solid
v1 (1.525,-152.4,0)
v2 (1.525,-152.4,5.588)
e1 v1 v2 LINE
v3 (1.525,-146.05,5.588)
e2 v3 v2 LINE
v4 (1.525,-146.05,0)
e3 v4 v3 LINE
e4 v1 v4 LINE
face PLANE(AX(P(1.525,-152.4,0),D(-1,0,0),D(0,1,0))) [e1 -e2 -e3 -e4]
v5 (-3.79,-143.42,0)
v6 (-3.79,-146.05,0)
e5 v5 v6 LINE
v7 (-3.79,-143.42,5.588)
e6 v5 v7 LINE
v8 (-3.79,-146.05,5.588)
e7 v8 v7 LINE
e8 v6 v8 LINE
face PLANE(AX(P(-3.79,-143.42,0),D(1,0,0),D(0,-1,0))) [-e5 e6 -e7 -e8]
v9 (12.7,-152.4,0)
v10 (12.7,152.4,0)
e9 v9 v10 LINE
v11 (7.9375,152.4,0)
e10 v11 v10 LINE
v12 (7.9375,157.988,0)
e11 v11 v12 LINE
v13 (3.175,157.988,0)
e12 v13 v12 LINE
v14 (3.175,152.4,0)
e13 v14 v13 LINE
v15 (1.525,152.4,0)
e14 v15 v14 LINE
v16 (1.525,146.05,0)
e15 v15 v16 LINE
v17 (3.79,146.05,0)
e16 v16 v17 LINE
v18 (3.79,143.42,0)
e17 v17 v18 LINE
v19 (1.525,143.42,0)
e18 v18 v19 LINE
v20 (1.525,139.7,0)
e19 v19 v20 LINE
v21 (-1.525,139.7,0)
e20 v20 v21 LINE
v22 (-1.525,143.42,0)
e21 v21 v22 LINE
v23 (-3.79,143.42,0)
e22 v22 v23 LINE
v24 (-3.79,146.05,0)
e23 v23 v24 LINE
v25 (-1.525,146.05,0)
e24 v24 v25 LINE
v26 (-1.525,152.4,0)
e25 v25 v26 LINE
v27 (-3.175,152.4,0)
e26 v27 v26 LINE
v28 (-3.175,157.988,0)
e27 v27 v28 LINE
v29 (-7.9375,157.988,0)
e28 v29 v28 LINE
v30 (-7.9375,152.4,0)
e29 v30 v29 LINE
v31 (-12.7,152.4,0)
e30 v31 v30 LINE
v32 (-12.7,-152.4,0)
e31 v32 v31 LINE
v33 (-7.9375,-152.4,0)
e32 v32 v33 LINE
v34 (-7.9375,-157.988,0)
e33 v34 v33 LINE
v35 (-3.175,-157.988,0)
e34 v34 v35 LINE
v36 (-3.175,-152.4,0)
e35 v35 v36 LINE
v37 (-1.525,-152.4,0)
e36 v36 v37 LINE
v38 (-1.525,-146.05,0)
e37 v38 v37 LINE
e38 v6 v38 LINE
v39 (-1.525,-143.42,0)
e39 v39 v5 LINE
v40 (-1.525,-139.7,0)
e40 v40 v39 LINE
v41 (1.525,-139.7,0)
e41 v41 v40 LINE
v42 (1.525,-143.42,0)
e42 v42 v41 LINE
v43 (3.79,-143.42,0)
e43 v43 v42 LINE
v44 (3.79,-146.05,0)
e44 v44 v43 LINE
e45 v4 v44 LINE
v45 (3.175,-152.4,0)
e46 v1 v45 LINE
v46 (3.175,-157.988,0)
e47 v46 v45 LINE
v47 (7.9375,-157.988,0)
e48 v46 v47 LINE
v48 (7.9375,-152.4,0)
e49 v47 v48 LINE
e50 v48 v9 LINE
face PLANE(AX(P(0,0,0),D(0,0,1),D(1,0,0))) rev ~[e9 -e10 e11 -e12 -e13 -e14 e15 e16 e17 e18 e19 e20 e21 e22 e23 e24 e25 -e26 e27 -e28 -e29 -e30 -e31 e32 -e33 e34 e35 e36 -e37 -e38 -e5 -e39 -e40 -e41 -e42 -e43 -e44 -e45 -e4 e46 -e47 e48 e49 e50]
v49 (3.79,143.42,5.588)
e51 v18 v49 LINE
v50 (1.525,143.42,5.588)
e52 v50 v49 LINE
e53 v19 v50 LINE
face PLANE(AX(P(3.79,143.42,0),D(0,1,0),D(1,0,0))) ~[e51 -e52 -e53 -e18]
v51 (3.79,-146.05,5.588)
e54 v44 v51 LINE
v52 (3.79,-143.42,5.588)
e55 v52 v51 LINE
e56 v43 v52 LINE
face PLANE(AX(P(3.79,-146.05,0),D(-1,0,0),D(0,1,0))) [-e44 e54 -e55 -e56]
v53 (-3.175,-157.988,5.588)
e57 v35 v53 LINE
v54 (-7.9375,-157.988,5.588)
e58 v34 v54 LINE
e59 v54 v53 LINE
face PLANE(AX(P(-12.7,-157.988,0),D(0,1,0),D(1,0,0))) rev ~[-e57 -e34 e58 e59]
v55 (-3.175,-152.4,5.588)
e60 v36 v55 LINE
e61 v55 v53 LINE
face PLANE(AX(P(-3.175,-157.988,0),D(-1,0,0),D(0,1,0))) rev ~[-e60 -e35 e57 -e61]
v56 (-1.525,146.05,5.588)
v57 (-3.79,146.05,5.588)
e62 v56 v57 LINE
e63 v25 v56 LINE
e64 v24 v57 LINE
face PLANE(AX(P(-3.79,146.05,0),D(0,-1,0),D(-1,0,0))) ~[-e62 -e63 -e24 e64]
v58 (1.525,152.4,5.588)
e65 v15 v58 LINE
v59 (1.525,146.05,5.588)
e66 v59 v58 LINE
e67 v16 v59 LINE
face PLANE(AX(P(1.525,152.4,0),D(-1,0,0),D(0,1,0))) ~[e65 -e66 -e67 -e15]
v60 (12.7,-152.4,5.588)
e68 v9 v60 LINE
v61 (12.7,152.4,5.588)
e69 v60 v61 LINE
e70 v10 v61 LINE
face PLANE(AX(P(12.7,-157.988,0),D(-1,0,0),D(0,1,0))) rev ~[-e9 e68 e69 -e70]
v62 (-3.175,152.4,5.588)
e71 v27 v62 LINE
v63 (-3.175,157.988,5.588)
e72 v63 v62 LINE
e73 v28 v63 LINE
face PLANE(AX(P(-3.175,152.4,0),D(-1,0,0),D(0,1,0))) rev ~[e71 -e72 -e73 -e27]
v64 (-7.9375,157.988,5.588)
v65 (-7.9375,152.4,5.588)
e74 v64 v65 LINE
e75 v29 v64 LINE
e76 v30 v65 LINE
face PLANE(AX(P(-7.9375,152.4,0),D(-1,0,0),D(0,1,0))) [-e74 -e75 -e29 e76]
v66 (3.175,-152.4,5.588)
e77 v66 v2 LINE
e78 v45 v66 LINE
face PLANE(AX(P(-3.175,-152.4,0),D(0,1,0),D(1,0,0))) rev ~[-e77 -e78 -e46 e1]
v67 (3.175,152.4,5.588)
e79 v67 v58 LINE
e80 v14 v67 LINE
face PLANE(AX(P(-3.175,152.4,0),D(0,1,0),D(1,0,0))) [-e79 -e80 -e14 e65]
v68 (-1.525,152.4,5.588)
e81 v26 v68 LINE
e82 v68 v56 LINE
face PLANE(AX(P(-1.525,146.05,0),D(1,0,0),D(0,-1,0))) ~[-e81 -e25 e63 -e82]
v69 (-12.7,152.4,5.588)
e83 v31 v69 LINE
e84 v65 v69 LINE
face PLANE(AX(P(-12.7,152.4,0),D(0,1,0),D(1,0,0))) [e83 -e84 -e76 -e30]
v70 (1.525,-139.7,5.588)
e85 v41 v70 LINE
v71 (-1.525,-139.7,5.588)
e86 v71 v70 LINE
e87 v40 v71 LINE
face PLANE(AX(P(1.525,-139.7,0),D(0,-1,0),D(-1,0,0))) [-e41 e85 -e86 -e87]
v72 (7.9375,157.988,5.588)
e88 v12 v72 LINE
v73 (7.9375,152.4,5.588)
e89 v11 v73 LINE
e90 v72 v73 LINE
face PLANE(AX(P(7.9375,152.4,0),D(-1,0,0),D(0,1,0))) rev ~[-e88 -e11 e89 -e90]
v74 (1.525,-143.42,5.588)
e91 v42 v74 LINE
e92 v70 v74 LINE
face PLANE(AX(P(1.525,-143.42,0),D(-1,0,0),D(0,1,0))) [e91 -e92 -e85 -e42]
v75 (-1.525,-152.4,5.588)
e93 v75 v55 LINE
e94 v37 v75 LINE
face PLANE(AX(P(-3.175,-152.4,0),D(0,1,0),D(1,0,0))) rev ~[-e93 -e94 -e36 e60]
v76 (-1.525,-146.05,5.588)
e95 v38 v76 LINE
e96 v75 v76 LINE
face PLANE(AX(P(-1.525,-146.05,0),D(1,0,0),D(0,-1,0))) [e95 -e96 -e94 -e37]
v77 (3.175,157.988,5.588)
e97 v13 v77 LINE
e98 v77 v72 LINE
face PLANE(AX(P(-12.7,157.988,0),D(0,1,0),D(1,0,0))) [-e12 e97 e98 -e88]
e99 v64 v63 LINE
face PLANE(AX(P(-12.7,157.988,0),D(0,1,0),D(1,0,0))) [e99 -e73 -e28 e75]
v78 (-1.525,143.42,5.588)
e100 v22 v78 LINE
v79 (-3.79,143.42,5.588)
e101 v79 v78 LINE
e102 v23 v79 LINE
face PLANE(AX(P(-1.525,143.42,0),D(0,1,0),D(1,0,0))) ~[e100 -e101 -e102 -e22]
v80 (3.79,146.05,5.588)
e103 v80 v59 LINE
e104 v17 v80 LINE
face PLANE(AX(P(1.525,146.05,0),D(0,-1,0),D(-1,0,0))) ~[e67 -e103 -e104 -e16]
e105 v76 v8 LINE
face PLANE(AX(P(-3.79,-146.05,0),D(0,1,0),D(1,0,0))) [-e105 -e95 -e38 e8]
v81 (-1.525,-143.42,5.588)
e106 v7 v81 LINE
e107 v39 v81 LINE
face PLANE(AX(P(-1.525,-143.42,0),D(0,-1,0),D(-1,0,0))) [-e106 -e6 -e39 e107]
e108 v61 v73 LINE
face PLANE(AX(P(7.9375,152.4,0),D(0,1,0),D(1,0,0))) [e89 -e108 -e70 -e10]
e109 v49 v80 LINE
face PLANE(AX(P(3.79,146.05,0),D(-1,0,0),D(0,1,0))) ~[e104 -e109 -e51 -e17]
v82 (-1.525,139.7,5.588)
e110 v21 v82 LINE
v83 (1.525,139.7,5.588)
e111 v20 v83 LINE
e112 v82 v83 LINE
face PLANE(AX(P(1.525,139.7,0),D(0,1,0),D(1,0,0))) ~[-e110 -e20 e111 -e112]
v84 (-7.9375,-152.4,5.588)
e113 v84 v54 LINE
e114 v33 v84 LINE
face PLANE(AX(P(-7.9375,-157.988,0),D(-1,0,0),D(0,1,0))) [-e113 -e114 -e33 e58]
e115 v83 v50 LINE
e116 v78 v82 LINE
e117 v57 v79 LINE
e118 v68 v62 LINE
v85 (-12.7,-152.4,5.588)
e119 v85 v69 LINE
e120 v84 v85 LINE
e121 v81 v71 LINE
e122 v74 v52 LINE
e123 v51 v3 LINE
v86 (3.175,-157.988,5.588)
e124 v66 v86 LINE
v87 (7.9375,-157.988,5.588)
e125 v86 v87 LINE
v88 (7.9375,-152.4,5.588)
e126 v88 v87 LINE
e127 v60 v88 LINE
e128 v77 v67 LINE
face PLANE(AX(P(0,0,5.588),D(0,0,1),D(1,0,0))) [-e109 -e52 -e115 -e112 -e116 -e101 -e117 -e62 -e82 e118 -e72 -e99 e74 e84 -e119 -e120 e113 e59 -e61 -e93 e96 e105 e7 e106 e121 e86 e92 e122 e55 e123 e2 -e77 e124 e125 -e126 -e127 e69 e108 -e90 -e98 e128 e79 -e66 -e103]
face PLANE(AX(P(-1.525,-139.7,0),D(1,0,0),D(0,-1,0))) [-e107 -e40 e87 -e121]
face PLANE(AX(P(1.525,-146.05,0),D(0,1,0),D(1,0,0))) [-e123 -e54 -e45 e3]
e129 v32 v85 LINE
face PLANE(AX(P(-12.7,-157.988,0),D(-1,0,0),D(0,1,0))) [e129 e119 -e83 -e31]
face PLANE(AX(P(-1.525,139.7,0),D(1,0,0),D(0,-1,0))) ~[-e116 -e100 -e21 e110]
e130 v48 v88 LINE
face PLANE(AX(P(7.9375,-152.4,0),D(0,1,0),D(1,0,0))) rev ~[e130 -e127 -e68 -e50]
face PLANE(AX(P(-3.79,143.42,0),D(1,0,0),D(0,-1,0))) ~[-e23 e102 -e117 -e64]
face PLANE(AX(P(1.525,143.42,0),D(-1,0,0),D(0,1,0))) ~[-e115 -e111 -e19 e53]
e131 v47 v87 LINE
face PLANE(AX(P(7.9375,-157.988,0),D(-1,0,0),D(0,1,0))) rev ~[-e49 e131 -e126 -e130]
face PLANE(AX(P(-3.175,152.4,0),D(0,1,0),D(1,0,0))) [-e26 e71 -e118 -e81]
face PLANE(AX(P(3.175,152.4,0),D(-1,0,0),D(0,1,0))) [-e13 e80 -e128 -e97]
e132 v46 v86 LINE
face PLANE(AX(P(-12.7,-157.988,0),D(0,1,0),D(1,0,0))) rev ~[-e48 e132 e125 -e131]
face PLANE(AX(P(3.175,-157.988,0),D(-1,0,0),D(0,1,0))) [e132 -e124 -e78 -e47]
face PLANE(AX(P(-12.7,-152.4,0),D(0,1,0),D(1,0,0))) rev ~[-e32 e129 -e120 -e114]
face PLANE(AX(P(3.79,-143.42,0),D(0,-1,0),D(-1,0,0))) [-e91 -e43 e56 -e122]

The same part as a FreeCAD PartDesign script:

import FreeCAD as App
import Part
import Sketcher
from FreeCAD import Vector
Q = App.Units.Quantity

doc = App.newDocument("Part")
params = doc.addObject("Spreadsheet::Sheet", "Params")
for row, (alias, value) in enumerate([
    ("sketch1_width", "1 in"),
    ("sketch1_height", "12.44 in"),
    ("pad1_length", "0.22 in"),
    ("sketch2_width", "0.25 in"),
    ("sketch2_height", "0.22 in"),
    ("sketch2_width2", "0.1875 in"),
    ("sketch3_height", "0.25 in"),
], start=1):
    params.set(f"A{row}", alias)
    params.set(f"B{row}", "=" + value)
    params.setAlias(f"B{row}", alias)

body = doc.addObject("PartDesign::Body", "Body")

sketch1 = doc.addObject("Sketcher::SketchObject", "Sketch")
body.addObject(sketch1)
sketch1.AttachmentSupport = (doc.XY_Plane, [""])
sketch1.MapMode = "FlatFace"
sketch1.addGeometry(Part.LineSegment(Vector(-13, 158, 0), Vector(-13, -158, 0)), False)
sketch1.addGeometry(Part.LineSegment(Vector(-13, -158, 0), Vector(13, -158, 0)), False)
sketch1.addGeometry(Part.LineSegment(Vector(13, -158, 0), Vector(13, 158, 0)), False)
sketch1.addGeometry(Part.LineSegment(Vector(13, 158, 0), Vector(-13, 158, 0)), False)
sketch1.addConstraint(Sketcher.Constraint("Coincident", 0, 2, 1, 1))
sketch1.addConstraint(Sketcher.Constraint("Coincident", 1, 2, 2, 1))
sketch1.addConstraint(Sketcher.Constraint("Coincident", 2, 2, 3, 1))
sketch1.addConstraint(Sketcher.Constraint("Coincident", 3, 2, 0, 1))
sketch1.addConstraint(Sketcher.Constraint("Vertical", 0))
sketch1.addConstraint(Sketcher.Constraint("Horizontal", 1))
sketch1.addConstraint(Sketcher.Constraint("Vertical", 2))
sketch1.addConstraint(Sketcher.Constraint("Horizontal", 3))
sketch1.addConstraint(Sketcher.Constraint("Symmetric", 0, 2, 2, 2, -1, 1))
sketch1.addConstraint(Sketcher.Constraint("DistanceX", 1, 1, 1, 2, Q("1 in")))
sketch1.addConstraint(Sketcher.Constraint("DistanceY", 0, 2, 0, 1, Q("12.44 in")))
sketch1.setExpression("Constraints[9]", "Params.sketch1_width")
sketch1.setExpression("Constraints[10]", "Params.sketch1_height")
pad1 = doc.addObject("PartDesign::Pad", "Pad")
body.addObject(pad1)
pad1.Profile = sketch1
pad1.setExpression("Length", "Params.pad1_length")

sketch2 = doc.addObject("Sketcher::SketchObject", "Sketch001")
body.addObject(sketch2)
sketch2.AttachmentSupport = (doc.XY_Plane, [""])
sketch2.MapMode = "FlatFace"
sketch2.addGeometry(Part.LineSegment(Vector(-12.7, -152.4, 0), Vector(-12.7, -158, 0)), False)
sketch2.addGeometry(Part.LineSegment(Vector(-12.7, -158, 0), Vector(-7.9, -158, 0)), False)
sketch2.addGeometry(Part.LineSegment(Vector(-7.9, -158, 0), Vector(-7.9, -152.4, 0)), False)
sketch2.addGeometry(Part.LineSegment(Vector(-7.9, -152.4, 0), Vector(-12.7, -152.4, 0)), False)
sketch2.addGeometry(Part.LineSegment(Vector(7.9, -152.4, 0), Vector(7.9, -158, 0)), False)
sketch2.addGeometry(Part.LineSegment(Vector(7.9, -158, 0), Vector(12.7, -158, 0)), False)
sketch2.addGeometry(Part.LineSegment(Vector(12.7, -158, 0), Vector(12.7, -152.4, 0)), False)
sketch2.addGeometry(Part.LineSegment(Vector(12.7, -152.4, 0), Vector(7.9, -152.4, 0)), False)
sketch2.addGeometry(Part.LineSegment(Vector(-3.2, -152.4, 0), Vector(-3.2, -158, 0)), False)
sketch2.addGeometry(Part.LineSegment(Vector(-3.2, -158, 0), Vector(3.2, -158, 0)), False)
sketch2.addGeometry(Part.LineSegment(Vector(3.2, -158, 0), Vector(3.2, -152.4, 0)), False)
sketch2.addGeometry(Part.LineSegment(Vector(3.2, -152.4, 0), Vector(-3.2, -152.4, 0)), False)
sketch2.addGeometry(Part.LineSegment(Vector(-12.7, 158, 0), Vector(-12.7, 152.4, 0)), False)
sketch2.addGeometry(Part.LineSegment(Vector(-12.7, 152.4, 0), Vector(-7.9, 152.4, 0)), False)
sketch2.addGeometry(Part.LineSegment(Vector(-7.9, 152.4, 0), Vector(-7.9, 158, 0)), False)
sketch2.addGeometry(Part.LineSegment(Vector(-7.9, 158, 0), Vector(-12.7, 158, 0)), False)
sketch2.addGeometry(Part.LineSegment(Vector(7.9, 158, 0), Vector(7.9, 152.4, 0)), False)
sketch2.addGeometry(Part.LineSegment(Vector(7.9, 152.4, 0), Vector(12.7, 152.4, 0)), False)
sketch2.addGeometry(Part.LineSegment(Vector(12.7, 152.4, 0), Vector(12.7, 158, 0)), False)
sketch2.addGeometry(Part.LineSegment(Vector(12.7, 158, 0), Vector(7.9, 158, 0)), False)
sketch2.addGeometry(Part.LineSegment(Vector(-3.2, 158, 0), Vector(-3.2, 152.4, 0)), False)
sketch2.addGeometry(Part.LineSegment(Vector(-3.2, 152.4, 0), Vector(3.2, 152.4, 0)), False)
sketch2.addGeometry(Part.LineSegment(Vector(3.2, 152.4, 0), Vector(3.2, 158, 0)), False)
sketch2.addGeometry(Part.LineSegment(Vector(3.2, 158, 0), Vector(-3.2, 158, 0)), False)
sketch2.addConstraint(Sketcher.Constraint("Coincident", 0, 2, 1, 1))
sketch2.addConstraint(Sketcher.Constraint("Coincident", 1, 2, 2, 1))
sketch2.addConstraint(Sketcher.Constraint("Coincident", 2, 2, 3, 1))
sketch2.addConstraint(Sketcher.Constraint("Coincident", 3, 2, 0, 1))
sketch2.addConstraint(Sketcher.Constraint("Coincident", 4, 2, 5, 1))
sketch2.addConstraint(Sketcher.Constraint("Coincident", 5, 2, 6, 1))
sketch2.addConstraint(Sketcher.Constraint("Coincident", 6, 2, 7, 1))
sketch2.addConstraint(Sketcher.Constraint("Coincident", 7, 2, 4, 1))
sketch2.addConstraint(Sketcher.Constraint("Coincident", 8, 2, 9, 1))
sketch2.addConstraint(Sketcher.Constraint("Coincident", 9, 2, 10, 1))
sketch2.addConstraint(Sketcher.Constraint("Coincident", 10, 2, 11, 1))
sketch2.addConstraint(Sketcher.Constraint("Coincident", 11, 2, 8, 1))
sketch2.addConstraint(Sketcher.Constraint("Coincident", 12, 2, 13, 1))
sketch2.addConstraint(Sketcher.Constraint("Coincident", 13, 2, 14, 1))
sketch2.addConstraint(Sketcher.Constraint("Coincident", 14, 2, 15, 1))
sketch2.addConstraint(Sketcher.Constraint("Coincident", 15, 2, 12, 1))
sketch2.addConstraint(Sketcher.Constraint("Coincident", 16, 2, 17, 1))
sketch2.addConstraint(Sketcher.Constraint("Coincident", 17, 2, 18, 1))
sketch2.addConstraint(Sketcher.Constraint("Coincident", 18, 2, 19, 1))
sketch2.addConstraint(Sketcher.Constraint("Coincident", 19, 2, 16, 1))
sketch2.addConstraint(Sketcher.Constraint("Coincident", 20, 2, 21, 1))
sketch2.addConstraint(Sketcher.Constraint("Coincident", 21, 2, 22, 1))
sketch2.addConstraint(Sketcher.Constraint("Coincident", 22, 2, 23, 1))
sketch2.addConstraint(Sketcher.Constraint("Coincident", 23, 2, 20, 1))
sketch2.addConstraint(Sketcher.Constraint("Vertical", 0))
sketch2.addConstraint(Sketcher.Constraint("Horizontal", 1))
sketch2.addConstraint(Sketcher.Constraint("Vertical", 2))
sketch2.addConstraint(Sketcher.Constraint("Horizontal", 3))
sketch2.addConstraint(Sketcher.Constraint("Vertical", 4))
sketch2.addConstraint(Sketcher.Constraint("Horizontal", 5))
sketch2.addConstraint(Sketcher.Constraint("Vertical", 6))
sketch2.addConstraint(Sketcher.Constraint("Horizontal", 7))
sketch2.addConstraint(Sketcher.Constraint("Vertical", 8))
sketch2.addConstraint(Sketcher.Constraint("Horizontal", 9))
sketch2.addConstraint(Sketcher.Constraint("Vertical", 10))
sketch2.addConstraint(Sketcher.Constraint("Horizontal", 11))
sketch2.addConstraint(Sketcher.Constraint("Vertical", 12))
sketch2.addConstraint(Sketcher.Constraint("Horizontal", 13))
sketch2.addConstraint(Sketcher.Constraint("Vertical", 14))
sketch2.addConstraint(Sketcher.Constraint("Horizontal", 15))
sketch2.addConstraint(Sketcher.Constraint("Vertical", 16))
sketch2.addConstraint(Sketcher.Constraint("Horizontal", 17))
sketch2.addConstraint(Sketcher.Constraint("Vertical", 18))
sketch2.addConstraint(Sketcher.Constraint("Horizontal", 19))
sketch2.addConstraint(Sketcher.Constraint("Vertical", 20))
sketch2.addConstraint(Sketcher.Constraint("Horizontal", 21))
sketch2.addConstraint(Sketcher.Constraint("Vertical", 22))
sketch2.addConstraint(Sketcher.Constraint("Horizontal", 23))
sketch2.addConstraint(Sketcher.Constraint("Symmetric", 6, 2, 12, 2, -1, 1))
sketch2.addConstraint(Sketcher.Constraint("Symmetric", 4, 2, 14, 2, -1, 1))
sketch2.addConstraint(Sketcher.Constraint("Symmetric", 2, 2, 16, 2, -1, 1))
sketch2.addConstraint(Sketcher.Constraint("Symmetric", 0, 2, 18, 2, -1, 1))
sketch2.addConstraint(Sketcher.Constraint("Symmetric", 10, 2, 20, 2, -1, 1))
sketch2.addConstraint(Sketcher.Constraint("Symmetric", 8, 2, 22, 2, -1, 1))
sketch2.addConstraint(Sketcher.Constraint("Symmetric", 1, 2, 4, 2, -2))
sketch2.addConstraint(Sketcher.Constraint("Symmetric", 3, 2, 6, 2, -2))
sketch2.addConstraint(Sketcher.Constraint("Horizontal", 5, 2, 8, 2))
sketch2.addConstraint(Sketcher.Constraint("Horizontal", 7, 2, 10, 2))
sketch2.addConstraint(Sketcher.Constraint("Vertical", 11, 2, 20, 2))
sketch2.addConstraint(Sketcher.Constraint("DistanceY", 2, 2, -1, 1, Q("6 in")))
sketch2.addConstraint(Sketcher.Constraint("DistanceX", 0, 2, 5, 2, Q("1 in")))
sketch2.addConstraint(Sketcher.Constraint("DistanceX", 9, 1, 9, 2, Q("0.25 in")))
sketch2.addConstraint(Sketcher.Constraint("DistanceY", 0, 2, 0, 1, Q("0.22 in")))
sketch2.addConstraint(Sketcher.Constraint("DistanceX", 1, 1, 1, 2, Q("0.1875 in")))
sketch2.setExpression("Constraints[61]", "Params.sketch2_width")
sketch2.setExpression("Constraints[62]", "Params.sketch2_height")
sketch2.setExpression("Constraints[63]", "Params.sketch2_width2")
pocket1 = doc.addObject("PartDesign::Pocket", "Pocket")
body.addObject(pocket1)
pocket1.Profile = sketch2
pocket1.Type = "ThroughAll"
pocket1.Reversed = True

sketch3 = doc.addObject("Sketcher::SketchObject", "Sketch002")
body.addObject(sketch3)
sketch3.AttachmentSupport = (doc.XY_Plane, [""])
sketch3.MapMode = "FlatFace"
sketch3.addGeometry(Part.LineSegment(Vector(-1.5, -152.4, 0), Vector(1.5, -152.4, 0)), False)
sketch3.addGeometry(Part.LineSegment(Vector(1.5, -152.4, 0), Vector(1.5, -146.1, 0)), False)
sketch3.addGeometry(Part.LineSegment(Vector(1.5, -146.1, 0), Vector(3.8, -146.1, 0)), False)
sketch3.addGeometry(Part.LineSegment(Vector(3.8, -146.1, 0), Vector(3.8, -143.4, 0)), False)
sketch3.addGeometry(Part.LineSegment(Vector(3.8, -143.4, 0), Vector(1.5, -143.4, 0)), False)
sketch3.addGeometry(Part.LineSegment(Vector(1.5, -143.4, 0), Vector(1.5, -139.7, 0)), False)
sketch3.addGeometry(Part.LineSegment(Vector(1.5, -139.7, 0), Vector(-1.5, -139.7, 0)), False)
sketch3.addGeometry(Part.LineSegment(Vector(-1.5, -139.7, 0), Vector(-1.5, -143.4, 0)), False)
sketch3.addGeometry(Part.LineSegment(Vector(-1.5, -143.4, 0), Vector(-3.8, -143.4, 0)), False)
sketch3.addGeometry(Part.LineSegment(Vector(-3.8, -143.4, 0), Vector(-3.8, -146.1, 0)), False)
sketch3.addGeometry(Part.LineSegment(Vector(-3.8, -146.1, 0), Vector(-1.5, -146.1, 0)), False)
sketch3.addGeometry(Part.LineSegment(Vector(-1.5, -146.1, 0), Vector(-1.5, -152.4, 0)), False)
sketch3.addConstraint(Sketcher.Constraint("Coincident", 0, 2, 1, 1))
sketch3.addConstraint(Sketcher.Constraint("Coincident", 1, 2, 2, 1))
sketch3.addConstraint(Sketcher.Constraint("Coincident", 2, 2, 3, 1))
sketch3.addConstraint(Sketcher.Constraint("Coincident", 3, 2, 4, 1))
sketch3.addConstraint(Sketcher.Constraint("Coincident", 4, 2, 5, 1))
sketch3.addConstraint(Sketcher.Constraint("Coincident", 5, 2, 6, 1))
sketch3.addConstraint(Sketcher.Constraint("Coincident", 6, 2, 7, 1))
sketch3.addConstraint(Sketcher.Constraint("Coincident", 7, 2, 8, 1))
sketch3.addConstraint(Sketcher.Constraint("Coincident", 8, 2, 9, 1))
sketch3.addConstraint(Sketcher.Constraint("Coincident", 9, 2, 10, 1))
sketch3.addConstraint(Sketcher.Constraint("Coincident", 10, 2, 11, 1))
sketch3.addConstraint(Sketcher.Constraint("Coincident", 11, 2, 0, 1))
sketch3.addConstraint(Sketcher.Constraint("Horizontal", 0))
sketch3.addConstraint(Sketcher.Constraint("Vertical", 1))
sketch3.addConstraint(Sketcher.Constraint("Horizontal", 2))
sketch3.addConstraint(Sketcher.Constraint("Vertical", 3))
sketch3.addConstraint(Sketcher.Constraint("Horizontal", 4))
sketch3.addConstraint(Sketcher.Constraint("Vertical", 5))
sketch3.addConstraint(Sketcher.Constraint("Horizontal", 6))
sketch3.addConstraint(Sketcher.Constraint("Vertical", 7))
sketch3.addConstraint(Sketcher.Constraint("Horizontal", 8))
sketch3.addConstraint(Sketcher.Constraint("Vertical", 9))
sketch3.addConstraint(Sketcher.Constraint("Horizontal", 10))
sketch3.addConstraint(Sketcher.Constraint("Vertical", 11))
sketch3.addConstraint(Sketcher.Constraint("Symmetric", 4, 2, 7, 2, -2))
sketch3.addConstraint(Sketcher.Constraint("Symmetric", 2, 2, 9, 2, -2))
sketch3.addConstraint(Sketcher.Constraint("Vertical", 1, 2, 4, 2))
sketch3.addConstraint(Sketcher.Constraint("Vertical", 7, 2, 10, 2))
sketch3.addConstraint(Sketcher.Constraint("DistanceY", 0, 2, -1, 1, Q("6 in")))
sketch3.addConstraint(Sketcher.Constraint("DistanceY", 1, 1, 1, 2, Q("0.25 in")))
sketch3.addConstraint(Sketcher.Constraint("DistanceY", 5, 2, -1, 1, Q("5.5 in")))
sketch3.addConstraint(Sketcher.Constraint("DistanceX", 0, 1, 0, 2, Q("3.05 mm")))
sketch3.addConstraint(Sketcher.Constraint("DistanceX", 2, 1, 2, 2, Q("2.265 mm")))
sketch3.addConstraint(Sketcher.Constraint("DistanceY", 3, 1, 3, 2, Q("2.63 mm")))
sketch3.setExpression("Constraints[29]", "Params.sketch3_height")
pocket2 = doc.addObject("PartDesign::Pocket", "Pocket001")
body.addObject(pocket2)
pocket2.Profile = sketch3
pocket2.Type = "ThroughAll"
pocket2.Reversed = True
doc.recompute()

mirrored = doc.addObject("PartDesign::Mirrored", "Mirrored")
body.addObject(mirrored)
mirrored.Originals = [pocket2]
mirrored.MirrorPlane = (doc.XZ_Plane, [""])
body.Tip = mirrored

doc.recompute()
